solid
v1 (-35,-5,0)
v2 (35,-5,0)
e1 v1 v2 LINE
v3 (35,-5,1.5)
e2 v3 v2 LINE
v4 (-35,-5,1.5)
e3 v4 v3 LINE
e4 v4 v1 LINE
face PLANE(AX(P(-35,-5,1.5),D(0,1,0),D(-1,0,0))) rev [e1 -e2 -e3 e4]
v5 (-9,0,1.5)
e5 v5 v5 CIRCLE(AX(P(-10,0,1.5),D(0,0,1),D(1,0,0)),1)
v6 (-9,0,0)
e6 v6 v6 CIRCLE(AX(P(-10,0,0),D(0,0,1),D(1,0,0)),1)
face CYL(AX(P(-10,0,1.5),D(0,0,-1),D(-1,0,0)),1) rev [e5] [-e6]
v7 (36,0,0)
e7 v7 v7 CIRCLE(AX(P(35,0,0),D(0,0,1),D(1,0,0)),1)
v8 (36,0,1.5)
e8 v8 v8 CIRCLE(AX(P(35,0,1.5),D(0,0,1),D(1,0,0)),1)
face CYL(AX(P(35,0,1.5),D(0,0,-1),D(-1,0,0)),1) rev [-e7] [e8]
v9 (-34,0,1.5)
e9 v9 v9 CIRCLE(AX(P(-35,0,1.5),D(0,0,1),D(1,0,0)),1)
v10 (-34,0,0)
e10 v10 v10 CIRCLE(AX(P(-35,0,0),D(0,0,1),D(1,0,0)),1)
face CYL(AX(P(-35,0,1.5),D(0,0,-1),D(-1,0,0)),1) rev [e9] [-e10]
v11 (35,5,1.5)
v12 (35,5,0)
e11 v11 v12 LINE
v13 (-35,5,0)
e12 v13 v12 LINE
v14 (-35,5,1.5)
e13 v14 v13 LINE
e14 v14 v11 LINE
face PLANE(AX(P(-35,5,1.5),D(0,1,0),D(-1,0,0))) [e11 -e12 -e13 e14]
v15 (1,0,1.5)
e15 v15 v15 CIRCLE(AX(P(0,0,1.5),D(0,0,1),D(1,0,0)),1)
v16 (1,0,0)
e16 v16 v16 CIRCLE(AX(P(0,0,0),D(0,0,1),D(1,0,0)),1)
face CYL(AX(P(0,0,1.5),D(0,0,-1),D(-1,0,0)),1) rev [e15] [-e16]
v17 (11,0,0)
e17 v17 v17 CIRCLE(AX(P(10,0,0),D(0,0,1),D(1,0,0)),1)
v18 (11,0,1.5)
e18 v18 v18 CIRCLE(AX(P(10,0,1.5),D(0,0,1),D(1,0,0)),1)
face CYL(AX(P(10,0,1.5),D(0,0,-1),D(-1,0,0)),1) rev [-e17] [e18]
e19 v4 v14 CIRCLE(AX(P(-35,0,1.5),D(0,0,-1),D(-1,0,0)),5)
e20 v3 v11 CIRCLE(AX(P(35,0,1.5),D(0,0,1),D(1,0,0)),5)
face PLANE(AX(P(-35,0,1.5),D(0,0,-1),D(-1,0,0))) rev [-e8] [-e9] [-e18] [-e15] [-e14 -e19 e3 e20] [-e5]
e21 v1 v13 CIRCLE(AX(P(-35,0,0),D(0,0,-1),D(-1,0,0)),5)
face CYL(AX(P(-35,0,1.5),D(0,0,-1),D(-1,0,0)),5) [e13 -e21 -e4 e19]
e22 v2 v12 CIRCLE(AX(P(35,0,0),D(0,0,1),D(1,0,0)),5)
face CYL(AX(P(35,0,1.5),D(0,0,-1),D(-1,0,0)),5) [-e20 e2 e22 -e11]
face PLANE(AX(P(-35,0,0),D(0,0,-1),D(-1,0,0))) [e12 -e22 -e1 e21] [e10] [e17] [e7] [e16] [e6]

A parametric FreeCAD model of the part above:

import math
import FreeCAD as App
import Part
import Sketcher
from FreeCAD import Vector

doc = App.newDocument("Part")
params = doc.addObject("Spreadsheet::Sheet", "Params")
for row, (alias, value) in enumerate([
    ("sketch1_diameter", "2 mm"),
    ("sketch1_radius", "5 mm"),
    ("sketch1_width", "70 mm"),
    ("pad1_length", "1.5 mm"),
], start=1):
    params.set(f"A{row}", alias)
    params.set(f"B{row}", "=" + value)
    params.setAlias(f"B{row}", alias)

body = doc.addObject("PartDesign::Body", "Body")

sketch1 = doc.addObject("Sketcher::SketchObject", "Sketch")
body.addObject(sketch1)
sketch1.AttachmentSupport = (doc.XY_Plane, [""])
sketch1.MapMode = "FlatFace"
sketch1.addGeometry(Part.LineSegment(Vector(35, 5, 0), Vector(-35, 5, 0)), False)
sketch1.addGeometry(Part.ArcOfCircle(Part.Circle(Vector(-35, 0, 0), Vector(0, 0, 1), 5), math.radians(90), math.radians(270)), False)
sketch1.addGeometry(Part.LineSegment(Vector(-35, -5, 0), Vector(35, -5, 0)), False)
sketch1.addGeometry(Part.ArcOfCircle(Part.Circle(Vector(35, 0, 0), Vector(0, 0, 1), 5), math.radians(-90), math.radians(90)), False)
sketch1.addGeometry(Part.Circle(Vector(35, 0, 0), Vector(0, 0, 1), 1), False)
sketch1.addGeometry(Part.Circle(Vector(10, 0, 0), Vector(0, 0, 1), 1), False)
sketch1.addGeometry(Part.Circle(Vector(0, 0, 0), Vector(0, 0, 1), 1), False)
sketch1.addGeometry(Part.Circle(Vector(-10, 0, 0), Vector(0, 0, 1), 1), False)
sketch1.addGeometry(Part.Circle(Vector(-35, 0, 0), Vector(0, 0, 1), 1), False)
sketch1.addConstraint(Sketcher.Constraint("Tangent", 0, 2, 1, 1))
sketch1.addConstraint(Sketcher.Constraint("Tangent", 1, 2, 2, 1))
sketch1.addConstraint(Sketcher.Constraint("Tangent", 2, 2, 3, 1))
sketch1.addConstraint(Sketcher.Constraint("Tangent", 3, 2, 0, 1))
sketch1.addConstraint(Sketcher.Constraint("Horizontal", 0))
sketch1.addConstraint(Sketcher.Constraint("Horizontal", 2))
sketch1.addConstraint(Sketcher.Constraint("Coincident", 6, 3, -1, 1))
sketch1.addConstraint(Sketcher.Constraint("Coincident", 4, 3, 3, 3))
sketch1.addConstraint(Sketcher.Constraint("Coincident", 8, 3, 1, 3))
sketch1.addConstraint(Sketcher.Constraint("Equal", 4, 5))
sketch1.addConstraint(Sketcher.Constraint("Equal", 5, 6))
sketch1.addConstraint(Sketcher.Constraint("Equal", 6, 7))
sketch1.addConstraint(Sketcher.Constraint("Equal", 7, 8))
sketch1.addConstraint(Sketcher.Constraint("Symmetric", 1, 3, 3, 3, -1, 1))
sketch1.addConstraint(Sketcher.Constraint("Symmetric", 5, 3, 7, 3, -1, 1))
sketch1.addConstraint(Sketcher.Constraint("PointOnObject", 5, 3, -1))
sketch1.addConstraint(Sketcher.Constraint("Diameter", 4, 2.0))
sketch1.addConstraint(Sketcher.Constraint("Radius", 1, 5.0))
sketch1.addConstraint(Sketcher.Constraint("DistanceX", 0, 2, 0, 1, 70.0))
sketch1.addConstraint(Sketcher.Constraint("DistanceX", -1, 1, 5, 3, 10.0))
sketch1.setExpression("Constraints[16]", "Params.sketch1_diameter")
sketch1.setExpression("Constraints[17]", "Params.sketch1_radius")
sketch1.setExpression("Constraints[18]", "Params.sketch1_width")
pad1 = doc.addObject("PartDesign::Pad", "Pad")
body.addObject(pad1)
pad1.Profile = sketch1
pad1.setExpression("Length", "Params.pad1_length")

doc.recompute()
